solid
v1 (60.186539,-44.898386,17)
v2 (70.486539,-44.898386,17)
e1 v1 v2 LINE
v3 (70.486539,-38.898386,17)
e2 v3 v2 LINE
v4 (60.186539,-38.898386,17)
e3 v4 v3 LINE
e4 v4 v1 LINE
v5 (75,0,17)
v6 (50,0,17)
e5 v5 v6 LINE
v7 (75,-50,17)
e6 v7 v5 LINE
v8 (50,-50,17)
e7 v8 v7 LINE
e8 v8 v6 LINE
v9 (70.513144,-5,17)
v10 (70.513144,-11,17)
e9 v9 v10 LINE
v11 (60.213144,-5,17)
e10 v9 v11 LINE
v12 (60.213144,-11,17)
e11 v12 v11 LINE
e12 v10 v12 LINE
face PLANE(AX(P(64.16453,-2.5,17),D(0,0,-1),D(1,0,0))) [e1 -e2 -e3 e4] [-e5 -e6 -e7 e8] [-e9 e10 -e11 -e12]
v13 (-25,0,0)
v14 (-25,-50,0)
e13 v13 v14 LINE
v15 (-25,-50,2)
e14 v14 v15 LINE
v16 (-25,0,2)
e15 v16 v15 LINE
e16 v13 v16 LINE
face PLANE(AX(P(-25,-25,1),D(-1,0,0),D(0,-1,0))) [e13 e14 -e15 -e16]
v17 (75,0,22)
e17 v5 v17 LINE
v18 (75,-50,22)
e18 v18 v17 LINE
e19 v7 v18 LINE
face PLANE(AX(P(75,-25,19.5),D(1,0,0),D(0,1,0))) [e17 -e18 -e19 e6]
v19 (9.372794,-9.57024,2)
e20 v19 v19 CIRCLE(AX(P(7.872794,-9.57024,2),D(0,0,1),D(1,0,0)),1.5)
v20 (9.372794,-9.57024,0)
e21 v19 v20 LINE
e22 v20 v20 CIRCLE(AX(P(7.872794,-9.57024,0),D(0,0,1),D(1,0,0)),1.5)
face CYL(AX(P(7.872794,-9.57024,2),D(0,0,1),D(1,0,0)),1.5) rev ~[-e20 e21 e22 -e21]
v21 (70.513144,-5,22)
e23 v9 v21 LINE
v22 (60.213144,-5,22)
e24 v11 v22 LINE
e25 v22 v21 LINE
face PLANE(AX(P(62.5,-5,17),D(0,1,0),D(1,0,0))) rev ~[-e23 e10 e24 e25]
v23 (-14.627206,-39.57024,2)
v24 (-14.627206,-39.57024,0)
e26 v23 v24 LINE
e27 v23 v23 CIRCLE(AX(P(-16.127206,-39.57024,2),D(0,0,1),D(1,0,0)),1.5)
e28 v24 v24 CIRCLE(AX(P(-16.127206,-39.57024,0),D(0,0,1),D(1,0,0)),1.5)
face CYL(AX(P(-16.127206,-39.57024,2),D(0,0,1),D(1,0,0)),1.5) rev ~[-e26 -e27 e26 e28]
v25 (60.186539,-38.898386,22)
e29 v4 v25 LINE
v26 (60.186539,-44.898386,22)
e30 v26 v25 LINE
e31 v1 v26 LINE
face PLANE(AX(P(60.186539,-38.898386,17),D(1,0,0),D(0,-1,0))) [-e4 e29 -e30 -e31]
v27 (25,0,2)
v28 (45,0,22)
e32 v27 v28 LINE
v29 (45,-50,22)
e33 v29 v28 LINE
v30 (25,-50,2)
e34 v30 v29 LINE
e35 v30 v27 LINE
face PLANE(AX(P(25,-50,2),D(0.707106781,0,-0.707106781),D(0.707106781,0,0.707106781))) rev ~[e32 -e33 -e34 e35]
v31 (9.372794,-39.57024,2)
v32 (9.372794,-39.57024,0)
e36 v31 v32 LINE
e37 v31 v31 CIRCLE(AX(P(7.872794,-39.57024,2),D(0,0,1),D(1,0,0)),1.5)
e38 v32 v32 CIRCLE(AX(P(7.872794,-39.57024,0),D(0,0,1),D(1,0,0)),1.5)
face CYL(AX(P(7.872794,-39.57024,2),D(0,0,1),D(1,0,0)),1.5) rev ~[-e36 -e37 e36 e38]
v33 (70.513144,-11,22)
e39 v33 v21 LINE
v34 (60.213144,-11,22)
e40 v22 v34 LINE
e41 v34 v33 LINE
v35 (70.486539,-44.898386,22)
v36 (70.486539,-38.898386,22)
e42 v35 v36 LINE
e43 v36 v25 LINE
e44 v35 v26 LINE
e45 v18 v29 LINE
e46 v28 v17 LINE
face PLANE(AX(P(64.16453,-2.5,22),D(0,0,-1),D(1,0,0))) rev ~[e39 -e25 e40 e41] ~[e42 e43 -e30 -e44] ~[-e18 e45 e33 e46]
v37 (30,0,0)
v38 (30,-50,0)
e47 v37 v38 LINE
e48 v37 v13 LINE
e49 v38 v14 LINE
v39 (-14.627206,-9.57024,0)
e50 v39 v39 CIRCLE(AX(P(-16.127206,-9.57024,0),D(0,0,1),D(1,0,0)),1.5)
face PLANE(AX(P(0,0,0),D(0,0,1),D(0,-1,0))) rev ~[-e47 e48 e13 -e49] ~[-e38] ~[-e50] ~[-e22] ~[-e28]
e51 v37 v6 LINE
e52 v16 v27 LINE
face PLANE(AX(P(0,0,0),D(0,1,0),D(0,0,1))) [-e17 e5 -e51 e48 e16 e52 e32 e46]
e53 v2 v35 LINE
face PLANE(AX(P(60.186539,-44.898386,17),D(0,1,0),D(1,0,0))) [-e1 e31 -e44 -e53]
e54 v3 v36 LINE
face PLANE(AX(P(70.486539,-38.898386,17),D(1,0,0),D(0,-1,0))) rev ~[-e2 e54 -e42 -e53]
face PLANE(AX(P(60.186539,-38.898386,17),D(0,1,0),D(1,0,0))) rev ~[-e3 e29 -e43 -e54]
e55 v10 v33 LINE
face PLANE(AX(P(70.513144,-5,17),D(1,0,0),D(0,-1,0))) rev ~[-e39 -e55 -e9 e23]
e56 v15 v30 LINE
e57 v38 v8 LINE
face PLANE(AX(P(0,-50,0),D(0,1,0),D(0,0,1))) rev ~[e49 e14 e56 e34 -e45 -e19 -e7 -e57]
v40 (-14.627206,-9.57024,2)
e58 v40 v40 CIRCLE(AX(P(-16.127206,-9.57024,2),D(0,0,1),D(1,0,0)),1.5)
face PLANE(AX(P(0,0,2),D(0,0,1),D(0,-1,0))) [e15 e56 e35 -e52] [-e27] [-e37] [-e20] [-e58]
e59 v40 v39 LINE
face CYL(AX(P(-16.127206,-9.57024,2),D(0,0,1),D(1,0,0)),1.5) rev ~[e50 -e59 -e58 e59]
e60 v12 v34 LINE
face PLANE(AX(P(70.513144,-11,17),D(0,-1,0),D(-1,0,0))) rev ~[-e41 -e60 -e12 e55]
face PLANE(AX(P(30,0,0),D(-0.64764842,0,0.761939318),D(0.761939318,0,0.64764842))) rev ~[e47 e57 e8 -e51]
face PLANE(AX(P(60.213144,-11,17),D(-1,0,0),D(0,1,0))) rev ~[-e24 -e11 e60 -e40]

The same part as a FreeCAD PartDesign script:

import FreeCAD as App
import Part
import Sketcher
from FreeCAD import Vector
Q = App.Units.Quantity

doc = App.newDocument("Part")
body = doc.addObject("PartDesign::Body", "Body")

# Sketch on XY plane
sketch1 = doc.addObject("Sketcher::SketchObject", "Sketch")
body.addObject(sketch1)
sketch1.AttachmentSupport = (doc.XY_Plane, [""])
sketch1.MapMode = "FlatFace"
sketch1.addGeometry(Part.LineSegment(Vector(0, 0, 0), Vector(0, -50, 0)), False)
sketch1.addGeometry(Part.LineSegment(Vector(0, -50, 0), Vector(50, -50, 0)), False)
sketch1.addGeometry(Part.LineSegment(Vector(50, -50, 0), Vector(50, 0, 0)), False)
sketch1.addGeometry(Part.LineSegment(Vector(50, 0, 0), Vector(0, 0, 0)), False)
sketch1.addConstraint(Sketcher.Constraint("Coincident", 0, 2, 1, 1))
sketch1.addConstraint(Sketcher.Constraint("Coincident", 1, 2, 2, 1))
sketch1.addConstraint(Sketcher.Constraint("Coincident", 2, 2, 3, 1))
sketch1.addConstraint(Sketcher.Constraint("Coincident", 3, 2, 0, 1))
sketch1.addConstraint(Sketcher.Constraint("Vertical", 0))
sketch1.addConstraint(Sketcher.Constraint("Horizontal", 1))
sketch1.addConstraint(Sketcher.Constraint("Vertical", 2))
sketch1.addConstraint(Sketcher.Constraint("Horizontal", 3))
sketch1.addConstraint(Sketcher.Constraint("Coincident", 3, 2, -1, 1))
sketch1.addConstraint(Sketcher.Constraint("Equal", 3, 0))
sketch1.addConstraint(Sketcher.Constraint("DistanceX", 1, 1, 1, 2, Q("50 mm")))
pad1 = doc.addObject("PartDesign::Pad", "Pad")
body.addObject(pad1)
pad1.Profile = sketch1
pad1.Length = 2

# Sketch on XY plane
sketch2 = doc.addObject("Sketcher::SketchObject", "Sketch001")
body.addObject(sketch2)
sketch2.AttachmentSupport = (doc.XY_Plane, [""])
sketch2.MapMode = "FlatFace"
sketch2.AttachmentOffset = App.Placement(Vector(0, 0, 2), App.Rotation())
sketch2.addGeometry(Part.LineSegment(Vector(25, 0, 0), Vector(25, -50, 0)), False)
sketch2.addGeometry(Part.LineSegment(Vector(25, -50, 0), Vector(50, -50, 0)), False)
sketch2.addGeometry(Part.LineSegment(Vector(50, -50, 0), Vector(50, 0, 0)), False)
sketch2.addGeometry(Part.LineSegment(Vector(50, 0, 0), Vector(25, 0, 0)), False)
sketch2.addConstraint(Sketcher.Constraint("Coincident", 0, 2, 1, 1))
sketch2.addConstraint(Sketcher.Constraint("Coincident", 1, 2, 2, 1))
sketch2.addConstraint(Sketcher.Constraint("Coincident", 2, 2, 3, 1))
sketch2.addConstraint(Sketcher.Constraint("Coincident", 3, 2, 0, 1))
sketch2.addConstraint(Sketcher.Constraint("Vertical", 0))
sketch2.addConstraint(Sketcher.Constraint("Horizontal", 1))
sketch2.addConstraint(Sketcher.Constraint("Vertical", 2))
sketch2.addConstraint(Sketcher.Constraint("Horizontal", 3))
sketch2.addConstraint(Sketcher.Constraint("PointOnObject", 2, 2, -1))
sketch2.addConstraint(Sketcher.Constraint("DistanceX", 1, 1, 1, 2, Q("25 mm")))
sketch2.addConstraint(Sketcher.Constraint("DistanceY", 0, 2, 0, 1, Q("50 mm")))
sketch2.addConstraint(Sketcher.Constraint("DistanceX", -1, 1, 0, 2, Q("25 mm")))
pad2 = doc.addObject("PartDesign::Pad", "Pad001")
body.addObject(pad2)
pad2.Profile = sketch2
pad2.Length = 20

# Sketch on YZ plane
sketch3 = doc.addObject("Sketcher::SketchObject", "Sketch002")
body.addObject(sketch3)
sketch3.AttachmentSupport = (doc.YZ_Plane, [""])
sketch3.MapMode = "FlatFace"
sketch3.AttachmentOffset = App.Placement(Vector(0, 0, 50), App.Rotation())
sketch3.addGeometry(Part.LineSegment(Vector(-50, 22, 0), Vector(-50, 17, 0)), False)
sketch3.addGeometry(Part.LineSegment(Vector(-50, 17, 0), Vector(0, 17, 0)), False)
sketch3.addGeometry(Part.LineSegment(Vector(0, 17, 0), Vector(0, 22, 0)), False)
sketch3.addGeometry(Part.LineSegment(Vector(0, 22, 0), Vector(-50, 22, 0)), False)
sketch3.addConstraint(Sketcher.Constraint("Coincident", 0, 2, 1, 1))
sketch3.addConstraint(Sketcher.Constraint("Coincident", 1, 2, 2, 1))
sketch3.addConstraint(Sketcher.Constraint("Coincident", 2, 2, 3, 1))
sketch3.addConstraint(Sketcher.Constraint("Coincident", 3, 2, 0, 1))
sketch3.addConstraint(Sketcher.Constraint("Vertical", 0))
sketch3.addConstraint(Sketcher.Constraint("Horizontal", 1))
sketch3.addConstraint(Sketcher.Constraint("Vertical", 2))
sketch3.addConstraint(Sketcher.Constraint("Horizontal", 3))
sketch3.addConstraint(Sketcher.Constraint("PointOnObject", 1, 2, -2))
sketch3.addConstraint(Sketcher.Constraint("DistanceX", 1, 1, 1, 2, Q("50 mm")))
sketch3.addConstraint(Sketcher.Constraint("DistanceY", 0, 2, 0, 1, Q("5 mm")))
sketch3.addConstraint(Sketcher.Constraint("DistanceY", -1, 1, 0, 2, Q("17 mm")))
pad3 = doc.addObject("PartDesign::Pad", "Pad002")
body.addObject(pad3)
pad3.Profile = sketch3
pad3.Length = 25

# Sketch on XZ plane
sketch4 = doc.addObject("Sketcher::SketchObject", "Sketch003")
body.addObject(sketch4)
sketch4.AttachmentSupport = (doc.XZ_Plane, [""])
sketch4.MapMode = "FlatFace"
sketch4.AttachmentOffset = App.Placement(Vector(0, 0, 50), App.Rotation())
sketch4.addGeometry(Part.LineSegment(Vector(45, 22, 0), Vector(25, 22, 0)), False)
sketch4.addGeometry(Part.LineSegment(Vector(25, 22, 0), Vector(25, 2, 0)), False)
sketch4.addGeometry(Part.LineSegment(Vector(25, 2, 0), Vector(45, 22, 0)), False)
sketch4.addConstraint(Sketcher.Constraint("Coincident", 0, 2, 1, 1))
sketch4.addConstraint(Sketcher.Constraint("Coincident", 1, 2, 2, 1))
sketch4.addConstraint(Sketcher.Constraint("Coincident", 2, 2, 0, 1))
sketch4.addConstraint(Sketcher.Constraint("Horizontal", 0))
sketch4.addConstraint(Sketcher.Constraint("Vertical", 1))
sketch4.addConstraint(Sketcher.Constraint("Equal", 0, 1))
sketch4.addConstraint(Sketcher.Constraint("DistanceX", 0, 2, 0, 1, Q("20 mm")))
sketch4.addConstraint(Sketcher.Constraint("DistanceX", -1, 1, 0, 2, Q("25 mm")))
sketch4.addConstraint(Sketcher.Constraint("DistanceY", -1, 1, 0, 2, Q("22 mm")))
pocket1 = doc.addObject("PartDesign::Pocket", "Pocket")
body.addObject(pocket1)
pocket1.Profile = sketch4
pocket1.Length = 50

# Sketch on XY plane
sketch5 = doc.addObject("Sketcher::SketchObject", "Sketch004")
body.addObject(sketch5)
sketch5.AttachmentSupport = (doc.XY_Plane, [""])
sketch5.MapMode = "FlatFace"
sketch5.AttachmentOffset = App.Placement(Vector(0, 0, 17), App.Rotation())
sketch5.addGeometry(Part.LineSegment(Vector(70.5, -11, 0), Vector(60.2, -11, 0)), False)
sketch5.addGeometry(Part.LineSegment(Vector(60.2, -11, 0), Vector(60.2, -5, 0)), False)
sketch5.addGeometry(Part.LineSegment(Vector(60.2, -5, 0), Vector(62.5, -5, 0)), False)
sketch5.addGeometry(Part.LineSegment(Vector(62.5, -5, 0), Vector(62.5, 0, 0)), False)
sketch5.addGeometry(Part.LineSegment(Vector(62.5, 0, 0), Vector(65.8, 0, 0)), False)
sketch5.addGeometry(Part.LineSegment(Vector(65.8, 0, 0), Vector(65.8, -5, 0)), False)
sketch5.addGeometry(Part.LineSegment(Vector(65.8, -5, 0), Vector(70.5, -5, 0)), False)
sketch5.addGeometry(Part.LineSegment(Vector(70.5, -5, 0), Vector(70.5, -11, 0)), False)
sketch5.addGeometry(Part.LineSegment(Vector(60.2, -44.9, 0), Vector(60.2, -38.9, 0)), False)
sketch5.addGeometry(Part.LineSegment(Vector(60.2, -38.9, 0), Vector(70.5, -38.9, 0)), False)
sketch5.addGeometry(Part.LineSegment(Vector(70.5, -38.9, 0), Vector(70.5, -44.9, 0)), False)
sketch5.addGeometry(Part.LineSegment(Vector(70.5, -44.9, 0), Vector(60.2, -44.9, 0)), False)
sketch5.addConstraint(Sketcher.Constraint("Coincident", 0, 2, 1, 1))
sketch5.addConstraint(Sketcher.Constraint("Coincident", 1, 2, 2, 1))
sketch5.addConstraint(Sketcher.Constraint("Coincident", 2, 2, 3, 1))
sketch5.addConstraint(Sketcher.Constraint("Coincident", 3, 2, 4, 1))
sketch5.addConstraint(Sketcher.Constraint("Coincident", 4, 2, 5, 1))
sketch5.addConstraint(Sketcher.Constraint("Coincident", 5, 2, 6, 1))
sketch5.addConstraint(Sketcher.Constraint("Coincident", 6, 2, 7, 1))
sketch5.addConstraint(Sketcher.Constraint("Coincident", 7, 2, 0, 1))
sketch5.addConstraint(Sketcher.Constraint("Coincident", 8, 2, 9, 1))
sketch5.addConstraint(Sketcher.Constraint("Coincident", 9, 2, 10, 1))
sketch5.addConstraint(Sketcher.Constraint("Coincident", 10, 2, 11, 1))
sketch5.addConstraint(Sketcher.Constraint("Coincident", 11, 2, 8, 1))
sketch5.addConstraint(Sketcher.Constraint("Horizontal", 0))
sketch5.addConstraint(Sketcher.Constraint("Vertical", 1))
sketch5.addConstraint(Sketcher.Constraint("Horizontal", 2))
sketch5.addConstraint(Sketcher.Constraint("Vertical", 3))
sketch5.addConstraint(Sketcher.Constraint("Horizontal", 4))
sketch5.addConstraint(Sketcher.Constraint("Vertical", 5))
sketch5.addConstraint(Sketcher.Constraint("Horizontal", 6))
sketch5.addConstraint(Sketcher.Constraint("Vertical", 7))
sketch5.addConstraint(Sketcher.Constraint("Vertical", 8))
sketch5.addConstraint(Sketcher.Constraint("Horizontal", 9))
sketch5.addConstraint(Sketcher.Constraint("Vertical", 10))
sketch5.addConstraint(Sketcher.Constraint("Horizontal", 11))
sketch5.addConstraint(Sketcher.Constraint("PointOnObject", 3, 2, -1))
sketch5.addConstraint(Sketcher.Constraint("Horizontal", 2, 2, 5, 2))
sketch5.addConstraint(Sketcher.Constraint("Equal", 0, 9))
sketch5.addConstraint(Sketcher.Constraint("Equal", 7, 8))
sketch5.addConstraint(Sketcher.Constraint("DistanceY", 1, 1, 1, 2, Q("6 mm")))
sketch5.addConstraint(Sketcher.Constraint("DistanceY", 3, 1, 3, 2, Q("5 mm")))
sketch5.addConstraint(Sketcher.Constraint("DistanceX", 0, 2, 0, 1, Q("10.3 mm")))
sketch5.addConstraint(Sketcher.Constraint("DistanceX", -1, 1, 2, 2, Q("62.5 mm")))
sketch5.addConstraint(Sketcher.Constraint("DistanceX", 4, 1, 4, 2, Q("3.329061 mm")))
sketch5.addConstraint(Sketcher.Constraint("DistanceX", 2, 1, 2, 2, Q("2.286856 mm")))
sketch5.addConstraint(Sketcher.Constraint("DistanceX", -1, 1, 8, 2, Q("60.186539 mm")))
sketch5.addConstraint(Sketcher.Constraint("DistanceY", 8, 2, -1, 1, Q("38.898386 mm")))
pocket2 = doc.addObject("PartDesign::Pocket", "Pocket001")
body.addObject(pocket2)
pocket2.Profile = sketch5
pocket2.Length = 50
pocket2.Reversed = True

# Sketch on XY plane
sketch6 = doc.addObject("Sketcher::SketchObject", "Sketch005")
body.addObject(sketch6)
sketch6.AttachmentSupport = (doc.XY_Plane, [""])
sketch6.MapMode = "FlatFace"
sketch6.AttachmentOffset = App.Placement(Vector(0, 0, 17), App.Rotation())
sketch6.addGeometry(Part.LineSegment(Vector(62.5, -5, 0), Vector(62.5, 0, 0)), False)
sketch6.addGeometry(Part.LineSegment(Vector(62.5, 0, 0), Vector(65.8, 0, 0)), False)
sketch6.addGeometry(Part.LineSegment(Vector(65.8, 0, 0), Vector(65.8, -5, 0)), False)
sketch6.addGeometry(Part.LineSegment(Vector(65.8, -5, 0), Vector(62.5, -5, 0)), False)
sketch6.addConstraint(Sketcher.Constraint("Coincident", 0, 2, 1, 1))
sketch6.addConstraint(Sketcher.Constraint("Coincident", 1, 2, 2, 1))
sketch6.addConstraint(Sketcher.Constraint("Coincident", 2, 2, 3, 1))
sketch6.addConstraint(Sketcher.Constraint("Coincident", 3, 2, 0, 1))
sketch6.addConstraint(Sketcher.Constraint("Vertical", 0))
sketch6.addConstraint(Sketcher.Constraint("Horizontal", 1))
sketch6.addConstraint(Sketcher.Constraint("Vertical", 2))
sketch6.addConstraint(Sketcher.Constraint("Horizontal", 3))
sketch6.addConstraint(Sketcher.Constraint("PointOnObject", 0, 2, -1))
sketch6.addConstraint(Sketcher.Constraint("DistanceY", 0, 1, 0, 2, Q("5 mm")))
sketch6.addConstraint(Sketcher.Constraint("DistanceX", -1, 1, 0, 2, Q("62.5 mm")))
sketch6.addConstraint(Sketcher.Constraint("DistanceX", 1, 1, 1, 2, Q("3.329061 mm")))
pad4 = doc.addObject("PartDesign::Pad", "Pad003")
body.addObject(pad4)
pad4.Profile = sketch6
pad4.Length = 5

# Sketch on XZ plane
sketch7 = doc.addObject("Sketcher::SketchObject", "Sketch006")
body.addObject(sketch7)
sketch7.AttachmentSupport = (doc.XZ_Plane, [""])
sketch7.MapMode = "FlatFace"
sketch7.addGeometry(Part.LineSegment(Vector(30, 0, 0), Vector(50, 17, 0)), False)
sketch7.addGeometry(Part.LineSegment(Vector(50, 17, 0), Vector(50, 0, 0)), False)
sketch7.addGeometry(Part.LineSegment(Vector(50, 0, 0), Vector(30, 0, 0)), False)
sketch7.addConstraint(Sketcher.Constraint("Coincident", 0, 2, 1, 1))
sketch7.addConstraint(Sketcher.Constraint("Coincident", 1, 2, 2, 1))
sketch7.addConstraint(Sketcher.Constraint("Coincident", 2, 2, 0, 1))
sketch7.addConstraint(Sketcher.Constraint("Vertical", 1))
sketch7.addConstraint(Sketcher.Constraint("Horizontal", 2))
sketch7.addConstraint(Sketcher.Constraint("PointOnObject", 1, 2, -1))
sketch7.addConstraint(Sketcher.Constraint("DistanceX", 2, 2, 2, 1, Q("20 mm")))
sketch7.addConstraint(Sketcher.Constraint("DistanceY", 1, 2, 1, 1, Q("17 mm")))
sketch7.addConstraint(Sketcher.Constraint("DistanceX", -1, 1, 0, 2, Q("50 mm")))
pocket3 = doc.addObject("PartDesign::Pocket", "Pocket002")
body.addObject(pocket3)
pocket3.Profile = sketch7
pocket3.Length = 50
pocket3.Reversed = True

# Sketch on YZ plane
sketch8 = doc.addObject("Sketcher::SketchObject", "Sketch007")
body.addObject(sketch8)
sketch8.AttachmentSupport = (doc.YZ_Plane, [""])
sketch8.MapMode = "FlatFace"
sketch8.addGeometry(Part.LineSegment(Vector(0, 2, 0), Vector(0, 0, 0)), False)
sketch8.addGeometry(Part.LineSegment(Vector(0, 0, 0), Vector(-50, 0, 0)), False)
sketch8.addGeometry(Part.LineSegment(Vector(-50, 0, 0), Vector(-50, 2, 0)), False)
sketch8.addGeometry(Part.LineSegment(Vector(-50, 2, 0), Vector(0, 2, 0)), False)
sketch8.addConstraint(Sketcher.Constraint("Coincident", 0, 2, 1, 1))
sketch8.addConstraint(Sketcher.Constraint("Coincident", 1, 2, 2, 1))
sketch8.addConstraint(Sketcher.Constraint("Coincident", 2, 2, 3, 1))
sketch8.addConstraint(Sketcher.Constraint("Coincident", 3, 2, 0, 1))
sketch8.addConstraint(Sketcher.Constraint("Vertical", 0))
sketch8.addConstraint(Sketcher.Constraint("Horizontal", 1))
sketch8.addConstraint(Sketcher.Constraint("Vertical", 2))
sketch8.addConstraint(Sketcher.Constraint("Horizontal", 3))
sketch8.addConstraint(Sketcher.Constraint("Coincident", 0, 2, -1, 1))
sketch8.addConstraint(Sketcher.Constraint("DistanceX", 1, 2, 1, 1, Q("50 mm")))
sketch8.addConstraint(Sketcher.Constraint("DistanceY", 0, 2, 0, 1, Q("2 mm")))
pad5 = doc.addObject("PartDesign::Pad", "Pad004")
body.addObject(pad5)
pad5.Profile = sketch8
pad5.Length = 25
pad5.Reversed = True

# Sketch on XY plane
sketch9 = doc.addObject("Sketcher::SketchObject", "Sketch008")
body.addObject(sketch9)
sketch9.AttachmentSupport = (doc.XY_Plane, [""])
sketch9.MapMode = "FlatFace"
sketch9.AttachmentOffset = App.Placement(Vector(0, 0, 2), App.Rotation())
sketch9.addGeometry(Part.Circle(Vector(-16.1, -9.6, 0), Vector(0, 0, 1), 1.5), False)
sketch9.addGeometry(Part.Circle(Vector(7.9, -9.6, 0), Vector(0, 0, 1), 1.5), False)
sketch9.addGeometry(Part.Circle(Vector(7.9, -39.6, 0), Vector(0, 0, 1), 1.5), False)
sketch9.addGeometry(Part.Circle(Vector(-16.1, -39.6, 0), Vector(0, 0, 1), 1.5), False)
sketch9.addConstraint(Sketcher.Constraint("Equal", 0, 1))
sketch9.addConstraint(Sketcher.Constraint("Equal", 1, 2))
sketch9.addConstraint(Sketcher.Constraint("Equal", 2, 3))
sketch9.addConstraint(Sketcher.Constraint("Horizontal", 0, 3, 1, 3))
sketch9.addConstraint(Sketcher.Constraint("Horizontal", 2, 3, 3, 3))
sketch9.addConstraint(Sketcher.Constraint("Vertical", 1, 3, 2, 3))
sketch9.addConstraint(Sketcher.Constraint("Vertical", 0, 3, 3, 3))
sketch9.addConstraint(Sketcher.Constraint("Diameter", 0, Q("3 mm")))
sketch9.addConstraint(Sketcher.Constraint("DistanceX", 0, 3, 1, 3, Q("24 mm")))
sketch9.addConstraint(Sketcher.Constraint("DistanceY", 2, 3, 1, 3, Q("30 mm")))
sketch9.addConstraint(Sketcher.Constraint("DistanceY", 0, 3, -1, 1, Q("9.57024 mm")))
sketch9.addConstraint(Sketcher.Constraint("DistanceX", 0, 3, -1, 1, Q("16.127206 mm")))
pocket4 = doc.addObject("PartDesign::Pocket", "Pocket003")
body.addObject(pocket4)
pocket4.Profile = sketch9
pocket4.Length = 50

doc.recompute()
